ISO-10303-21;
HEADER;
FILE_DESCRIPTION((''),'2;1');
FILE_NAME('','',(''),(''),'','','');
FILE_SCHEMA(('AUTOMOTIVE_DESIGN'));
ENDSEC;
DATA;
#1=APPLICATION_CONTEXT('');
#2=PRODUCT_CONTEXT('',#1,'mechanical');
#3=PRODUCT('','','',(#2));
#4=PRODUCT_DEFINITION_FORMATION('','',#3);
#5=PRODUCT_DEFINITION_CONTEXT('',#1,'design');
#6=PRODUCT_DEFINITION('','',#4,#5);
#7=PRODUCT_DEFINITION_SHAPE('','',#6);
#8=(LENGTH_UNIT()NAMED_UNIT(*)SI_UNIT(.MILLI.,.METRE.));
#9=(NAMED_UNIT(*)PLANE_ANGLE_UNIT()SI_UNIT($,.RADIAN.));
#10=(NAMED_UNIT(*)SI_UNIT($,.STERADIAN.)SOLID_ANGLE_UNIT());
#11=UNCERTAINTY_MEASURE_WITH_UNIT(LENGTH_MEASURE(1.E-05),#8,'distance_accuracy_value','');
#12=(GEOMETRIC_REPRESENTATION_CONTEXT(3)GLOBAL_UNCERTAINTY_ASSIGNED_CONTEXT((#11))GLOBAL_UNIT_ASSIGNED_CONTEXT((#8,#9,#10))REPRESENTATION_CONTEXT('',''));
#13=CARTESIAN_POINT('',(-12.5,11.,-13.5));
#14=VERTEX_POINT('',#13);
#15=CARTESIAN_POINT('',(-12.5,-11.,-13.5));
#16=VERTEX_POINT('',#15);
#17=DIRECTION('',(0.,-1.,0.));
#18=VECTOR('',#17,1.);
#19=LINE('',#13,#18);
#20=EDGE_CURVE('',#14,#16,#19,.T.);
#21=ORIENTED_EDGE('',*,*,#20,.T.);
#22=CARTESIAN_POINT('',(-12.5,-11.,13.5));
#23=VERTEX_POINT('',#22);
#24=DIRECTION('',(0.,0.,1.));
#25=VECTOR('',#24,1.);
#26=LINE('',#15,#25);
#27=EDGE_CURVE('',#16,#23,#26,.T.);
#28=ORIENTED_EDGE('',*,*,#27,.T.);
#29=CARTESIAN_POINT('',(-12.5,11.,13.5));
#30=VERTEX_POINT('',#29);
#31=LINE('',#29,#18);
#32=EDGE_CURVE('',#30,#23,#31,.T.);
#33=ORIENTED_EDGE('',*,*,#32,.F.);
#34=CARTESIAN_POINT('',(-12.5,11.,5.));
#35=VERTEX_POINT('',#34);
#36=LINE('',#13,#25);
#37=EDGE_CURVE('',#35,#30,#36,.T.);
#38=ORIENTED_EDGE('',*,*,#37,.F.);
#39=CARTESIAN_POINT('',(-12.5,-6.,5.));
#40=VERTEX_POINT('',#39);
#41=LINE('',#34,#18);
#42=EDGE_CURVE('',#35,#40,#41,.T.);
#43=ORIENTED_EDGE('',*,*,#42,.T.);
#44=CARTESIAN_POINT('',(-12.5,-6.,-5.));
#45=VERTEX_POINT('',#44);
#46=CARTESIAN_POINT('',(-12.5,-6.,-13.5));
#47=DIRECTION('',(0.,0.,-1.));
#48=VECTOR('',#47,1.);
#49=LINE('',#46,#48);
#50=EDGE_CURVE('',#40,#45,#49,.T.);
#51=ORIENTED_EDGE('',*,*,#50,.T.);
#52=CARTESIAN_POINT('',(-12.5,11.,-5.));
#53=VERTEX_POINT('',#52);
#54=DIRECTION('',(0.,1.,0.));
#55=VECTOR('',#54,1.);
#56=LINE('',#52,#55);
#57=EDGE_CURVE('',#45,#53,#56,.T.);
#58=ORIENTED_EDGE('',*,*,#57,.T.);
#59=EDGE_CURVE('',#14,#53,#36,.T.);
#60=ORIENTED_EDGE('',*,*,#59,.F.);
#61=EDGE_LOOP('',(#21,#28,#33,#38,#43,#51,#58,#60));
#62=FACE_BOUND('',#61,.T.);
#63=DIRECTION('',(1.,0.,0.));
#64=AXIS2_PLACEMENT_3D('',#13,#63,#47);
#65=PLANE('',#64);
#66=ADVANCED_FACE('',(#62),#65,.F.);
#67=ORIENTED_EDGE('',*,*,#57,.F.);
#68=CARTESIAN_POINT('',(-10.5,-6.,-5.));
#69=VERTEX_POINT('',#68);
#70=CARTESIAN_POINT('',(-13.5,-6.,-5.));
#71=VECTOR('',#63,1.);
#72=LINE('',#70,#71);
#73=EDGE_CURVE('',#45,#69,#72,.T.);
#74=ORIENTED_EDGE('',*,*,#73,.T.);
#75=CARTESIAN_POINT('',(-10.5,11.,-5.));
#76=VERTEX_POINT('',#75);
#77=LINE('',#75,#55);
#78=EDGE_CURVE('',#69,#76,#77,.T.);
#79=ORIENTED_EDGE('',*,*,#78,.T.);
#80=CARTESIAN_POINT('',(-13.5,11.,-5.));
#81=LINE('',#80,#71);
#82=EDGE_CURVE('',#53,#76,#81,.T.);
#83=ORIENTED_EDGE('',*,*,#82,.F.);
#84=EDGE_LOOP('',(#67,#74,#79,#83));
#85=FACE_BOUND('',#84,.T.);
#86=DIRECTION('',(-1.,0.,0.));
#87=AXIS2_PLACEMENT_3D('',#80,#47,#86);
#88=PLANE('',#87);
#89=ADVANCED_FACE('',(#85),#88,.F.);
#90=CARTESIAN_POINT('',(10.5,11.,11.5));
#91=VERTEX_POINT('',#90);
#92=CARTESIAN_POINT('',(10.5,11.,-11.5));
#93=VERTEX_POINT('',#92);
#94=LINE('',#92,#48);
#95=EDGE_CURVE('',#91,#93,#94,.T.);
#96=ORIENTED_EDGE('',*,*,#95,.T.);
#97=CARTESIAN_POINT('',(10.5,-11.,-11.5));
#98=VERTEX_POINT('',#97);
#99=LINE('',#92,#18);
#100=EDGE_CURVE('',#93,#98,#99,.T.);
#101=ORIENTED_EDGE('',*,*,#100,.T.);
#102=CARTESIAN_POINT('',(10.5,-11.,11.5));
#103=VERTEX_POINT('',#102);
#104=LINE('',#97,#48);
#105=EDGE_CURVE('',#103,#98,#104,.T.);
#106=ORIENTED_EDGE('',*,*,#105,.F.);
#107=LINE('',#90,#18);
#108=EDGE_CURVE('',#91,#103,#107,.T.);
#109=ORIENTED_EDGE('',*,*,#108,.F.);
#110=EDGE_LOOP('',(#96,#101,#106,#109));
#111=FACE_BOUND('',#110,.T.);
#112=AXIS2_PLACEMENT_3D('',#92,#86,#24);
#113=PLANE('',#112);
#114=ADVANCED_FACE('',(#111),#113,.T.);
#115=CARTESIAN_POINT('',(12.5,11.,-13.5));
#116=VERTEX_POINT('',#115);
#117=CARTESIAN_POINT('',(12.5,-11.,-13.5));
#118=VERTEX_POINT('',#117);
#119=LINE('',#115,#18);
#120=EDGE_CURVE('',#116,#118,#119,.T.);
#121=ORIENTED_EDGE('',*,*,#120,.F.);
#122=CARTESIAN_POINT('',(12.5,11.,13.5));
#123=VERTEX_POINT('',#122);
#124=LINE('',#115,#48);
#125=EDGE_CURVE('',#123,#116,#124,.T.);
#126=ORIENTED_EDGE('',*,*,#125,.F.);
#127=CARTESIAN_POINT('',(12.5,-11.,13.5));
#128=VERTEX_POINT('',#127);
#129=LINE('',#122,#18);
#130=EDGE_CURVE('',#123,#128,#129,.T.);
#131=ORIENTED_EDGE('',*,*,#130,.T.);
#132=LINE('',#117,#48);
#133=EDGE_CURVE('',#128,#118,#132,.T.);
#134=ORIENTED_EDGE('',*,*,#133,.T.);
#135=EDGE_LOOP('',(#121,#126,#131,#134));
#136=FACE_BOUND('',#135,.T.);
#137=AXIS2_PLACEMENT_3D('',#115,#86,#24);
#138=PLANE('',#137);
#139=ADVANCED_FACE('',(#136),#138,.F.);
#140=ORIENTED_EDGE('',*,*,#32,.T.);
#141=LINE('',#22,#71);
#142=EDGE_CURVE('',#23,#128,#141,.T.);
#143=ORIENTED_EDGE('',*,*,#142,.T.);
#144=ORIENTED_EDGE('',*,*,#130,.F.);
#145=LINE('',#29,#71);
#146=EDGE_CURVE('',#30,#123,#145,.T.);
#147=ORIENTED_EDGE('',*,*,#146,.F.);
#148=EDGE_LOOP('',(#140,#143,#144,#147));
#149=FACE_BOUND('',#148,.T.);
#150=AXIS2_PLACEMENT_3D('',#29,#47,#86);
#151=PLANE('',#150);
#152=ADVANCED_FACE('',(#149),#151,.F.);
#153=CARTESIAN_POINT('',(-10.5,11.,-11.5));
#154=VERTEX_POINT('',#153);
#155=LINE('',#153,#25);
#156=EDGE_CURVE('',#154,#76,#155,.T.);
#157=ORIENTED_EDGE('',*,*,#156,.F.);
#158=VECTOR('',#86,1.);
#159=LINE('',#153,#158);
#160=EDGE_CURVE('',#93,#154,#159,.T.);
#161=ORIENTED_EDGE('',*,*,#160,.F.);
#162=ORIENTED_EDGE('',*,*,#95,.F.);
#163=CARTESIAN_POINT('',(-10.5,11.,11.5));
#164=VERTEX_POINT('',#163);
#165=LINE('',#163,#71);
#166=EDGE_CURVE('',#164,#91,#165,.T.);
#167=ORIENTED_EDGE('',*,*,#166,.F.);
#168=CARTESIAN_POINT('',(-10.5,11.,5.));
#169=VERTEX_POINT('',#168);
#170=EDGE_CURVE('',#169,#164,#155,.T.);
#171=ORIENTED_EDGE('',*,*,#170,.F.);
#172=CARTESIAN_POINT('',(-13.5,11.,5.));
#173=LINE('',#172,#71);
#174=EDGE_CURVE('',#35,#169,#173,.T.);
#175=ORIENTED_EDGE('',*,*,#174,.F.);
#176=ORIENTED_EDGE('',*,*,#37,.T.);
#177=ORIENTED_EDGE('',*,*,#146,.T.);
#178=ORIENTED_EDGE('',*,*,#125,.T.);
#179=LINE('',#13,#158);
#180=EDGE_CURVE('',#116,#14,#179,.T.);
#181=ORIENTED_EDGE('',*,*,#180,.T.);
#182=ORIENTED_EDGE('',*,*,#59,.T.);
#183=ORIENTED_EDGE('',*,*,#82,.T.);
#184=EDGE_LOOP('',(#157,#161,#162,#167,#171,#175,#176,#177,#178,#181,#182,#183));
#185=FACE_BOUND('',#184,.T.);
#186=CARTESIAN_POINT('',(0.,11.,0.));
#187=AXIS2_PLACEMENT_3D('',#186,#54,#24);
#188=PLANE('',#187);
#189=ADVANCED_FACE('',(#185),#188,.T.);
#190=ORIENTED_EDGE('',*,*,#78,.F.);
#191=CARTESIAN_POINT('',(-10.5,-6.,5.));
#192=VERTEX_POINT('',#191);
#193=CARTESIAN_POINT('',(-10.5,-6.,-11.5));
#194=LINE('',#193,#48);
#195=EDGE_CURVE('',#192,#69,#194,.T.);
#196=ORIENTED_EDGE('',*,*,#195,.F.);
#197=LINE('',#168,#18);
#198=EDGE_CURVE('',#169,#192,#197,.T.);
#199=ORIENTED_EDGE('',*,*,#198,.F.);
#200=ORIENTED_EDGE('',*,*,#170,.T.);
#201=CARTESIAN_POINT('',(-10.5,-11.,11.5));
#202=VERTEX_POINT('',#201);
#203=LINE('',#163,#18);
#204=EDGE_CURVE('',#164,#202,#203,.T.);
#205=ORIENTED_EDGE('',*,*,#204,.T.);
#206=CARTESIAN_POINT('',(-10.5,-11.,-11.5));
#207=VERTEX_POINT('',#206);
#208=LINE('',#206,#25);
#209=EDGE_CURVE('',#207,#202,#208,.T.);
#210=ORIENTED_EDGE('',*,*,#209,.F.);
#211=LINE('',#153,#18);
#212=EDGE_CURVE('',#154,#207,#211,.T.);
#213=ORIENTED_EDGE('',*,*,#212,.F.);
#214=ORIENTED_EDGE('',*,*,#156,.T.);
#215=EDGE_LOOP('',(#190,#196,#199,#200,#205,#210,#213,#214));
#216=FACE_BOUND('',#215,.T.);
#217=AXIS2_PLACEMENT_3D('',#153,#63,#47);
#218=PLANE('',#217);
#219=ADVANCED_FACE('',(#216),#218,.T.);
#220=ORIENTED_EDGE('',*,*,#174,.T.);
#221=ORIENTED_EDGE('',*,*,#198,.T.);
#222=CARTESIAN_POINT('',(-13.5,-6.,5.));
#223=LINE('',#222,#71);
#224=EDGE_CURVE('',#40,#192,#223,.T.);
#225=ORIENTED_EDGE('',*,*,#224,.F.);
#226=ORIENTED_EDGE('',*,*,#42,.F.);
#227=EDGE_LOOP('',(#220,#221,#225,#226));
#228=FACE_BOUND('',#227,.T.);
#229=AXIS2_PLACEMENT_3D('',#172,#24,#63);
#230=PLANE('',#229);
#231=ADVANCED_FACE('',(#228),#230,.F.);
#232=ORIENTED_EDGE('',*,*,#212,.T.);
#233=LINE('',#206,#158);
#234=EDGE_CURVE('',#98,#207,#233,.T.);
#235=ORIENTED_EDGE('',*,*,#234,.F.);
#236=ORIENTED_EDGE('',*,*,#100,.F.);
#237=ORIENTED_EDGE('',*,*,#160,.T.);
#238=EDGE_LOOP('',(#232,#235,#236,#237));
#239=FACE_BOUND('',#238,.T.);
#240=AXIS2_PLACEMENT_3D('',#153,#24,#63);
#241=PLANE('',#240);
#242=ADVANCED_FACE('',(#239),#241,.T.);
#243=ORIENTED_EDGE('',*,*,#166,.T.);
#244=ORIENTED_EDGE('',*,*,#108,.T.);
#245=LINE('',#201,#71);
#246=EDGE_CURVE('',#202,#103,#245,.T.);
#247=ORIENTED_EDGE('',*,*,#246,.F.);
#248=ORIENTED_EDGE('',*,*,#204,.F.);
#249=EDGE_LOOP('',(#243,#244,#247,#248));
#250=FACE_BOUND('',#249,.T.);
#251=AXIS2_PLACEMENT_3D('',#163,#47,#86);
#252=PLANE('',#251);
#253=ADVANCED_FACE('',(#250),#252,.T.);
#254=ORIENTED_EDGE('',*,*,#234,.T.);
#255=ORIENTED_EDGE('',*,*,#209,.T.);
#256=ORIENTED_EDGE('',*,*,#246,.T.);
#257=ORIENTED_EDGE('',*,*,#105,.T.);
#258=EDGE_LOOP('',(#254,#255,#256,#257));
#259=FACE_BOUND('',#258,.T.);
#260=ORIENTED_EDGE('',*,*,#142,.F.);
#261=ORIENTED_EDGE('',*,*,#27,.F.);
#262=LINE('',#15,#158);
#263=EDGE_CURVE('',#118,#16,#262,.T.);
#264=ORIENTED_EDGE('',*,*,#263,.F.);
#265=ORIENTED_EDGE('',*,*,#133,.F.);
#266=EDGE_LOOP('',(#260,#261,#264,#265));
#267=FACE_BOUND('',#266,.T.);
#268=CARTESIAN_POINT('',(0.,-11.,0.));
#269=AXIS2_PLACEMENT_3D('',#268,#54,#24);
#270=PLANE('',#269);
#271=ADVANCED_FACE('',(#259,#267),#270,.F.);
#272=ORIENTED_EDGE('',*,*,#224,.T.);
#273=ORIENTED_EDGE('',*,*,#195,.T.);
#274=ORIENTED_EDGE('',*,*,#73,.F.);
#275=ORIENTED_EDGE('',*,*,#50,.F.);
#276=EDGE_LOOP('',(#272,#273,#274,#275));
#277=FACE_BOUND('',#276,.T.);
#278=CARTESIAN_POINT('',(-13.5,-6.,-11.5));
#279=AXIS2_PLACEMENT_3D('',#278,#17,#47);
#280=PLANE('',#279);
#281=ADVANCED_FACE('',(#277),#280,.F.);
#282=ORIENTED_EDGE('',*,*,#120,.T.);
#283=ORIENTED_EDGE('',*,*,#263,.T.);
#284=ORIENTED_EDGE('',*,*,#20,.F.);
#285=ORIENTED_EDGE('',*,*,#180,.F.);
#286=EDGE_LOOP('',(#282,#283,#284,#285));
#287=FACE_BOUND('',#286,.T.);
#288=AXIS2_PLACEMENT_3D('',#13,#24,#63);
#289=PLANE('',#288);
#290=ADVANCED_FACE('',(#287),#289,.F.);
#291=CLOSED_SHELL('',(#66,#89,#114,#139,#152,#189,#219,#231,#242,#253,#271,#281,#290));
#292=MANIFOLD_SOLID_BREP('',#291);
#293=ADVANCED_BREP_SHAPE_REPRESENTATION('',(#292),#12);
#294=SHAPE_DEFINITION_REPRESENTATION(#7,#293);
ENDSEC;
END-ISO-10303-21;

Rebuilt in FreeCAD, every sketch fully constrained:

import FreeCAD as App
import Part
import Sketcher
from FreeCAD import Vector

doc = App.newDocument("Part")
body = doc.addObject("PartDesign::Body", "Body")

sketch1 = body.newObject("Sketcher::SketchObject", "Sketch")
sketch1.AttachmentSupport = (doc.getObject("XZ_Plane"), [""])
sketch1.MapMode = "FlatFace"
sketch1.addGeometry(Part.LineSegment(Vector(-12.5, -13.5, 0), Vector(-12.5, 13.5, 0)), False)
sketch1.addGeometry(Part.LineSegment(Vector(-12.5, 13.5, 0), Vector(12.5, 13.5, 0)), False)
sketch1.addGeometry(Part.LineSegment(Vector(12.5, 13.5, 0), Vector(12.5, -13.5, 0)), False)
sketch1.addGeometry(Part.LineSegment(Vector(12.5, -13.5, 0), Vector(-12.5, -13.5, 0)), False)
sketch1.addGeometry(Part.LineSegment(Vector(10.5, 11.5, 0), Vector(-10.5, 11.5, 0)), False)
sketch1.addGeometry(Part.LineSegment(Vector(-10.5, 11.5, 0), Vector(-10.5, -11.5, 0)), False)
sketch1.addGeometry(Part.LineSegment(Vector(-10.5, -11.5, 0), Vector(10.5, -11.5, 0)), False)
sketch1.addGeometry(Part.LineSegment(Vector(10.5, -11.5, 0), Vector(10.5, 11.5, 0)), False)
sketch1.addConstraint(Sketcher.Constraint("Coincident", 0, 2, 1, 1))
sketch1.addConstraint(Sketcher.Constraint("Coincident", 1, 2, 2, 1))
sketch1.addConstraint(Sketcher.Constraint("Coincident", 2, 2, 3, 1))
sketch1.addConstraint(Sketcher.Constraint("Coincident", 3, 2, 0, 1))
sketch1.addConstraint(Sketcher.Constraint("Coincident", 4, 2, 5, 1))
sketch1.addConstraint(Sketcher.Constraint("Coincident", 5, 2, 6, 1))
sketch1.addConstraint(Sketcher.Constraint("Coincident", 6, 2, 7, 1))
sketch1.addConstraint(Sketcher.Constraint("Coincident", 7, 2, 4, 1))
sketch1.addConstraint(Sketcher.Constraint("Vertical", 0))
sketch1.addConstraint(Sketcher.Constraint("Horizontal", 1))
sketch1.addConstraint(Sketcher.Constraint("Vertical", 2))
sketch1.addConstraint(Sketcher.Constraint("Horizontal", 3))
sketch1.addConstraint(Sketcher.Constraint("Horizontal", 4))
sketch1.addConstraint(Sketcher.Constraint("Vertical", 5))
sketch1.addConstraint(Sketcher.Constraint("Horizontal", 6))
sketch1.addConstraint(Sketcher.Constraint("Vertical", 7))
sketch1.addConstraint(Sketcher.Constraint("Symmetric", 0, 2, 2, 2, -1, 1))
sketch1.addConstraint(Sketcher.Constraint("Symmetric", 4, 2, 6, 2, -1, 1))
sketch1.addConstraint(Sketcher.Constraint("DistanceX", 1, 1, 1, 2, 25.0))
sketch1.addConstraint(Sketcher.Constraint("DistanceX", 4, 2, 4, 1, 21.0))
sketch1.addConstraint(Sketcher.Constraint("DistanceY", 0, 1, 0, 2, 27.0))
sketch1.addConstraint(Sketcher.Constraint("DistanceY", 5, 2, 5, 1, 23.0))
pad1 = body.newObject("PartDesign::Pad", "Pad")
pad1.Profile = sketch1
pad1.Length = 22
pad1.Midplane = True

sketch2 = body.newObject("Sketcher::SketchObject", "Sketch001")
sketch2.AttachmentSupport = (doc.getObject("YZ_Plane"), [""])
sketch2.MapMode = "FlatFace"
sketch2.AttachmentOffset = App.Placement(Vector(0, 0, -10.5), App.Rotation())
sketch2.addGeometry(Part.LineSegment(Vector(11, 5, 0), Vector(-6, 5, 0)), False)
sketch2.addGeometry(Part.LineSegment(Vector(-6, 5, 0), Vector(-6, -5, 0)), False)
sketch2.addGeometry(Part.LineSegment(Vector(-6, -5, 0), Vector(11, -5, 0)), False)
sketch2.addGeometry(Part.LineSegment(Vector(11, -5, 0), Vector(11, 5, 0)), False)
sketch2.addConstraint(Sketcher.Constraint("Coincident", 0, 2, 1, 1))
sketch2.addConstraint(Sketcher.Constraint("Coincident", 1, 2, 2, 1))
sketch2.addConstraint(Sketcher.Constraint("Coincident", 2, 2, 3, 1))
sketch2.addConstraint(Sketcher.Constraint("Coincident", 3, 2, 0, 1))
sketch2.addConstraint(Sketcher.Constraint("Horizontal", 0))
sketch2.addConstraint(Sketcher.Constraint("Vertical", 1))
sketch2.addConstraint(Sketcher.Constraint("Horizontal", 2))
sketch2.addConstraint(Sketcher.Constraint("Vertical", 3))
sketch2.addConstraint(Sketcher.Constraint("DistanceX", 0, 2, 0, 1, 17.0))
sketch2.addConstraint(Sketcher.Constraint("DistanceY", 1, 2, 1, 1, 10.0))
sketch2.addConstraint(Sketcher.Constraint("DistanceX", 0, 2, -1, 1, 6.0))
sketch2.addConstraint(Sketcher.Constraint("DistanceY", -1, 1, 0, 2, 5.0))
pocket1 = body.newObject("PartDesign::Pocket", "Pocket")
pocket1.Profile = sketch2
pocket1.Length = 3

doc.recompute()
